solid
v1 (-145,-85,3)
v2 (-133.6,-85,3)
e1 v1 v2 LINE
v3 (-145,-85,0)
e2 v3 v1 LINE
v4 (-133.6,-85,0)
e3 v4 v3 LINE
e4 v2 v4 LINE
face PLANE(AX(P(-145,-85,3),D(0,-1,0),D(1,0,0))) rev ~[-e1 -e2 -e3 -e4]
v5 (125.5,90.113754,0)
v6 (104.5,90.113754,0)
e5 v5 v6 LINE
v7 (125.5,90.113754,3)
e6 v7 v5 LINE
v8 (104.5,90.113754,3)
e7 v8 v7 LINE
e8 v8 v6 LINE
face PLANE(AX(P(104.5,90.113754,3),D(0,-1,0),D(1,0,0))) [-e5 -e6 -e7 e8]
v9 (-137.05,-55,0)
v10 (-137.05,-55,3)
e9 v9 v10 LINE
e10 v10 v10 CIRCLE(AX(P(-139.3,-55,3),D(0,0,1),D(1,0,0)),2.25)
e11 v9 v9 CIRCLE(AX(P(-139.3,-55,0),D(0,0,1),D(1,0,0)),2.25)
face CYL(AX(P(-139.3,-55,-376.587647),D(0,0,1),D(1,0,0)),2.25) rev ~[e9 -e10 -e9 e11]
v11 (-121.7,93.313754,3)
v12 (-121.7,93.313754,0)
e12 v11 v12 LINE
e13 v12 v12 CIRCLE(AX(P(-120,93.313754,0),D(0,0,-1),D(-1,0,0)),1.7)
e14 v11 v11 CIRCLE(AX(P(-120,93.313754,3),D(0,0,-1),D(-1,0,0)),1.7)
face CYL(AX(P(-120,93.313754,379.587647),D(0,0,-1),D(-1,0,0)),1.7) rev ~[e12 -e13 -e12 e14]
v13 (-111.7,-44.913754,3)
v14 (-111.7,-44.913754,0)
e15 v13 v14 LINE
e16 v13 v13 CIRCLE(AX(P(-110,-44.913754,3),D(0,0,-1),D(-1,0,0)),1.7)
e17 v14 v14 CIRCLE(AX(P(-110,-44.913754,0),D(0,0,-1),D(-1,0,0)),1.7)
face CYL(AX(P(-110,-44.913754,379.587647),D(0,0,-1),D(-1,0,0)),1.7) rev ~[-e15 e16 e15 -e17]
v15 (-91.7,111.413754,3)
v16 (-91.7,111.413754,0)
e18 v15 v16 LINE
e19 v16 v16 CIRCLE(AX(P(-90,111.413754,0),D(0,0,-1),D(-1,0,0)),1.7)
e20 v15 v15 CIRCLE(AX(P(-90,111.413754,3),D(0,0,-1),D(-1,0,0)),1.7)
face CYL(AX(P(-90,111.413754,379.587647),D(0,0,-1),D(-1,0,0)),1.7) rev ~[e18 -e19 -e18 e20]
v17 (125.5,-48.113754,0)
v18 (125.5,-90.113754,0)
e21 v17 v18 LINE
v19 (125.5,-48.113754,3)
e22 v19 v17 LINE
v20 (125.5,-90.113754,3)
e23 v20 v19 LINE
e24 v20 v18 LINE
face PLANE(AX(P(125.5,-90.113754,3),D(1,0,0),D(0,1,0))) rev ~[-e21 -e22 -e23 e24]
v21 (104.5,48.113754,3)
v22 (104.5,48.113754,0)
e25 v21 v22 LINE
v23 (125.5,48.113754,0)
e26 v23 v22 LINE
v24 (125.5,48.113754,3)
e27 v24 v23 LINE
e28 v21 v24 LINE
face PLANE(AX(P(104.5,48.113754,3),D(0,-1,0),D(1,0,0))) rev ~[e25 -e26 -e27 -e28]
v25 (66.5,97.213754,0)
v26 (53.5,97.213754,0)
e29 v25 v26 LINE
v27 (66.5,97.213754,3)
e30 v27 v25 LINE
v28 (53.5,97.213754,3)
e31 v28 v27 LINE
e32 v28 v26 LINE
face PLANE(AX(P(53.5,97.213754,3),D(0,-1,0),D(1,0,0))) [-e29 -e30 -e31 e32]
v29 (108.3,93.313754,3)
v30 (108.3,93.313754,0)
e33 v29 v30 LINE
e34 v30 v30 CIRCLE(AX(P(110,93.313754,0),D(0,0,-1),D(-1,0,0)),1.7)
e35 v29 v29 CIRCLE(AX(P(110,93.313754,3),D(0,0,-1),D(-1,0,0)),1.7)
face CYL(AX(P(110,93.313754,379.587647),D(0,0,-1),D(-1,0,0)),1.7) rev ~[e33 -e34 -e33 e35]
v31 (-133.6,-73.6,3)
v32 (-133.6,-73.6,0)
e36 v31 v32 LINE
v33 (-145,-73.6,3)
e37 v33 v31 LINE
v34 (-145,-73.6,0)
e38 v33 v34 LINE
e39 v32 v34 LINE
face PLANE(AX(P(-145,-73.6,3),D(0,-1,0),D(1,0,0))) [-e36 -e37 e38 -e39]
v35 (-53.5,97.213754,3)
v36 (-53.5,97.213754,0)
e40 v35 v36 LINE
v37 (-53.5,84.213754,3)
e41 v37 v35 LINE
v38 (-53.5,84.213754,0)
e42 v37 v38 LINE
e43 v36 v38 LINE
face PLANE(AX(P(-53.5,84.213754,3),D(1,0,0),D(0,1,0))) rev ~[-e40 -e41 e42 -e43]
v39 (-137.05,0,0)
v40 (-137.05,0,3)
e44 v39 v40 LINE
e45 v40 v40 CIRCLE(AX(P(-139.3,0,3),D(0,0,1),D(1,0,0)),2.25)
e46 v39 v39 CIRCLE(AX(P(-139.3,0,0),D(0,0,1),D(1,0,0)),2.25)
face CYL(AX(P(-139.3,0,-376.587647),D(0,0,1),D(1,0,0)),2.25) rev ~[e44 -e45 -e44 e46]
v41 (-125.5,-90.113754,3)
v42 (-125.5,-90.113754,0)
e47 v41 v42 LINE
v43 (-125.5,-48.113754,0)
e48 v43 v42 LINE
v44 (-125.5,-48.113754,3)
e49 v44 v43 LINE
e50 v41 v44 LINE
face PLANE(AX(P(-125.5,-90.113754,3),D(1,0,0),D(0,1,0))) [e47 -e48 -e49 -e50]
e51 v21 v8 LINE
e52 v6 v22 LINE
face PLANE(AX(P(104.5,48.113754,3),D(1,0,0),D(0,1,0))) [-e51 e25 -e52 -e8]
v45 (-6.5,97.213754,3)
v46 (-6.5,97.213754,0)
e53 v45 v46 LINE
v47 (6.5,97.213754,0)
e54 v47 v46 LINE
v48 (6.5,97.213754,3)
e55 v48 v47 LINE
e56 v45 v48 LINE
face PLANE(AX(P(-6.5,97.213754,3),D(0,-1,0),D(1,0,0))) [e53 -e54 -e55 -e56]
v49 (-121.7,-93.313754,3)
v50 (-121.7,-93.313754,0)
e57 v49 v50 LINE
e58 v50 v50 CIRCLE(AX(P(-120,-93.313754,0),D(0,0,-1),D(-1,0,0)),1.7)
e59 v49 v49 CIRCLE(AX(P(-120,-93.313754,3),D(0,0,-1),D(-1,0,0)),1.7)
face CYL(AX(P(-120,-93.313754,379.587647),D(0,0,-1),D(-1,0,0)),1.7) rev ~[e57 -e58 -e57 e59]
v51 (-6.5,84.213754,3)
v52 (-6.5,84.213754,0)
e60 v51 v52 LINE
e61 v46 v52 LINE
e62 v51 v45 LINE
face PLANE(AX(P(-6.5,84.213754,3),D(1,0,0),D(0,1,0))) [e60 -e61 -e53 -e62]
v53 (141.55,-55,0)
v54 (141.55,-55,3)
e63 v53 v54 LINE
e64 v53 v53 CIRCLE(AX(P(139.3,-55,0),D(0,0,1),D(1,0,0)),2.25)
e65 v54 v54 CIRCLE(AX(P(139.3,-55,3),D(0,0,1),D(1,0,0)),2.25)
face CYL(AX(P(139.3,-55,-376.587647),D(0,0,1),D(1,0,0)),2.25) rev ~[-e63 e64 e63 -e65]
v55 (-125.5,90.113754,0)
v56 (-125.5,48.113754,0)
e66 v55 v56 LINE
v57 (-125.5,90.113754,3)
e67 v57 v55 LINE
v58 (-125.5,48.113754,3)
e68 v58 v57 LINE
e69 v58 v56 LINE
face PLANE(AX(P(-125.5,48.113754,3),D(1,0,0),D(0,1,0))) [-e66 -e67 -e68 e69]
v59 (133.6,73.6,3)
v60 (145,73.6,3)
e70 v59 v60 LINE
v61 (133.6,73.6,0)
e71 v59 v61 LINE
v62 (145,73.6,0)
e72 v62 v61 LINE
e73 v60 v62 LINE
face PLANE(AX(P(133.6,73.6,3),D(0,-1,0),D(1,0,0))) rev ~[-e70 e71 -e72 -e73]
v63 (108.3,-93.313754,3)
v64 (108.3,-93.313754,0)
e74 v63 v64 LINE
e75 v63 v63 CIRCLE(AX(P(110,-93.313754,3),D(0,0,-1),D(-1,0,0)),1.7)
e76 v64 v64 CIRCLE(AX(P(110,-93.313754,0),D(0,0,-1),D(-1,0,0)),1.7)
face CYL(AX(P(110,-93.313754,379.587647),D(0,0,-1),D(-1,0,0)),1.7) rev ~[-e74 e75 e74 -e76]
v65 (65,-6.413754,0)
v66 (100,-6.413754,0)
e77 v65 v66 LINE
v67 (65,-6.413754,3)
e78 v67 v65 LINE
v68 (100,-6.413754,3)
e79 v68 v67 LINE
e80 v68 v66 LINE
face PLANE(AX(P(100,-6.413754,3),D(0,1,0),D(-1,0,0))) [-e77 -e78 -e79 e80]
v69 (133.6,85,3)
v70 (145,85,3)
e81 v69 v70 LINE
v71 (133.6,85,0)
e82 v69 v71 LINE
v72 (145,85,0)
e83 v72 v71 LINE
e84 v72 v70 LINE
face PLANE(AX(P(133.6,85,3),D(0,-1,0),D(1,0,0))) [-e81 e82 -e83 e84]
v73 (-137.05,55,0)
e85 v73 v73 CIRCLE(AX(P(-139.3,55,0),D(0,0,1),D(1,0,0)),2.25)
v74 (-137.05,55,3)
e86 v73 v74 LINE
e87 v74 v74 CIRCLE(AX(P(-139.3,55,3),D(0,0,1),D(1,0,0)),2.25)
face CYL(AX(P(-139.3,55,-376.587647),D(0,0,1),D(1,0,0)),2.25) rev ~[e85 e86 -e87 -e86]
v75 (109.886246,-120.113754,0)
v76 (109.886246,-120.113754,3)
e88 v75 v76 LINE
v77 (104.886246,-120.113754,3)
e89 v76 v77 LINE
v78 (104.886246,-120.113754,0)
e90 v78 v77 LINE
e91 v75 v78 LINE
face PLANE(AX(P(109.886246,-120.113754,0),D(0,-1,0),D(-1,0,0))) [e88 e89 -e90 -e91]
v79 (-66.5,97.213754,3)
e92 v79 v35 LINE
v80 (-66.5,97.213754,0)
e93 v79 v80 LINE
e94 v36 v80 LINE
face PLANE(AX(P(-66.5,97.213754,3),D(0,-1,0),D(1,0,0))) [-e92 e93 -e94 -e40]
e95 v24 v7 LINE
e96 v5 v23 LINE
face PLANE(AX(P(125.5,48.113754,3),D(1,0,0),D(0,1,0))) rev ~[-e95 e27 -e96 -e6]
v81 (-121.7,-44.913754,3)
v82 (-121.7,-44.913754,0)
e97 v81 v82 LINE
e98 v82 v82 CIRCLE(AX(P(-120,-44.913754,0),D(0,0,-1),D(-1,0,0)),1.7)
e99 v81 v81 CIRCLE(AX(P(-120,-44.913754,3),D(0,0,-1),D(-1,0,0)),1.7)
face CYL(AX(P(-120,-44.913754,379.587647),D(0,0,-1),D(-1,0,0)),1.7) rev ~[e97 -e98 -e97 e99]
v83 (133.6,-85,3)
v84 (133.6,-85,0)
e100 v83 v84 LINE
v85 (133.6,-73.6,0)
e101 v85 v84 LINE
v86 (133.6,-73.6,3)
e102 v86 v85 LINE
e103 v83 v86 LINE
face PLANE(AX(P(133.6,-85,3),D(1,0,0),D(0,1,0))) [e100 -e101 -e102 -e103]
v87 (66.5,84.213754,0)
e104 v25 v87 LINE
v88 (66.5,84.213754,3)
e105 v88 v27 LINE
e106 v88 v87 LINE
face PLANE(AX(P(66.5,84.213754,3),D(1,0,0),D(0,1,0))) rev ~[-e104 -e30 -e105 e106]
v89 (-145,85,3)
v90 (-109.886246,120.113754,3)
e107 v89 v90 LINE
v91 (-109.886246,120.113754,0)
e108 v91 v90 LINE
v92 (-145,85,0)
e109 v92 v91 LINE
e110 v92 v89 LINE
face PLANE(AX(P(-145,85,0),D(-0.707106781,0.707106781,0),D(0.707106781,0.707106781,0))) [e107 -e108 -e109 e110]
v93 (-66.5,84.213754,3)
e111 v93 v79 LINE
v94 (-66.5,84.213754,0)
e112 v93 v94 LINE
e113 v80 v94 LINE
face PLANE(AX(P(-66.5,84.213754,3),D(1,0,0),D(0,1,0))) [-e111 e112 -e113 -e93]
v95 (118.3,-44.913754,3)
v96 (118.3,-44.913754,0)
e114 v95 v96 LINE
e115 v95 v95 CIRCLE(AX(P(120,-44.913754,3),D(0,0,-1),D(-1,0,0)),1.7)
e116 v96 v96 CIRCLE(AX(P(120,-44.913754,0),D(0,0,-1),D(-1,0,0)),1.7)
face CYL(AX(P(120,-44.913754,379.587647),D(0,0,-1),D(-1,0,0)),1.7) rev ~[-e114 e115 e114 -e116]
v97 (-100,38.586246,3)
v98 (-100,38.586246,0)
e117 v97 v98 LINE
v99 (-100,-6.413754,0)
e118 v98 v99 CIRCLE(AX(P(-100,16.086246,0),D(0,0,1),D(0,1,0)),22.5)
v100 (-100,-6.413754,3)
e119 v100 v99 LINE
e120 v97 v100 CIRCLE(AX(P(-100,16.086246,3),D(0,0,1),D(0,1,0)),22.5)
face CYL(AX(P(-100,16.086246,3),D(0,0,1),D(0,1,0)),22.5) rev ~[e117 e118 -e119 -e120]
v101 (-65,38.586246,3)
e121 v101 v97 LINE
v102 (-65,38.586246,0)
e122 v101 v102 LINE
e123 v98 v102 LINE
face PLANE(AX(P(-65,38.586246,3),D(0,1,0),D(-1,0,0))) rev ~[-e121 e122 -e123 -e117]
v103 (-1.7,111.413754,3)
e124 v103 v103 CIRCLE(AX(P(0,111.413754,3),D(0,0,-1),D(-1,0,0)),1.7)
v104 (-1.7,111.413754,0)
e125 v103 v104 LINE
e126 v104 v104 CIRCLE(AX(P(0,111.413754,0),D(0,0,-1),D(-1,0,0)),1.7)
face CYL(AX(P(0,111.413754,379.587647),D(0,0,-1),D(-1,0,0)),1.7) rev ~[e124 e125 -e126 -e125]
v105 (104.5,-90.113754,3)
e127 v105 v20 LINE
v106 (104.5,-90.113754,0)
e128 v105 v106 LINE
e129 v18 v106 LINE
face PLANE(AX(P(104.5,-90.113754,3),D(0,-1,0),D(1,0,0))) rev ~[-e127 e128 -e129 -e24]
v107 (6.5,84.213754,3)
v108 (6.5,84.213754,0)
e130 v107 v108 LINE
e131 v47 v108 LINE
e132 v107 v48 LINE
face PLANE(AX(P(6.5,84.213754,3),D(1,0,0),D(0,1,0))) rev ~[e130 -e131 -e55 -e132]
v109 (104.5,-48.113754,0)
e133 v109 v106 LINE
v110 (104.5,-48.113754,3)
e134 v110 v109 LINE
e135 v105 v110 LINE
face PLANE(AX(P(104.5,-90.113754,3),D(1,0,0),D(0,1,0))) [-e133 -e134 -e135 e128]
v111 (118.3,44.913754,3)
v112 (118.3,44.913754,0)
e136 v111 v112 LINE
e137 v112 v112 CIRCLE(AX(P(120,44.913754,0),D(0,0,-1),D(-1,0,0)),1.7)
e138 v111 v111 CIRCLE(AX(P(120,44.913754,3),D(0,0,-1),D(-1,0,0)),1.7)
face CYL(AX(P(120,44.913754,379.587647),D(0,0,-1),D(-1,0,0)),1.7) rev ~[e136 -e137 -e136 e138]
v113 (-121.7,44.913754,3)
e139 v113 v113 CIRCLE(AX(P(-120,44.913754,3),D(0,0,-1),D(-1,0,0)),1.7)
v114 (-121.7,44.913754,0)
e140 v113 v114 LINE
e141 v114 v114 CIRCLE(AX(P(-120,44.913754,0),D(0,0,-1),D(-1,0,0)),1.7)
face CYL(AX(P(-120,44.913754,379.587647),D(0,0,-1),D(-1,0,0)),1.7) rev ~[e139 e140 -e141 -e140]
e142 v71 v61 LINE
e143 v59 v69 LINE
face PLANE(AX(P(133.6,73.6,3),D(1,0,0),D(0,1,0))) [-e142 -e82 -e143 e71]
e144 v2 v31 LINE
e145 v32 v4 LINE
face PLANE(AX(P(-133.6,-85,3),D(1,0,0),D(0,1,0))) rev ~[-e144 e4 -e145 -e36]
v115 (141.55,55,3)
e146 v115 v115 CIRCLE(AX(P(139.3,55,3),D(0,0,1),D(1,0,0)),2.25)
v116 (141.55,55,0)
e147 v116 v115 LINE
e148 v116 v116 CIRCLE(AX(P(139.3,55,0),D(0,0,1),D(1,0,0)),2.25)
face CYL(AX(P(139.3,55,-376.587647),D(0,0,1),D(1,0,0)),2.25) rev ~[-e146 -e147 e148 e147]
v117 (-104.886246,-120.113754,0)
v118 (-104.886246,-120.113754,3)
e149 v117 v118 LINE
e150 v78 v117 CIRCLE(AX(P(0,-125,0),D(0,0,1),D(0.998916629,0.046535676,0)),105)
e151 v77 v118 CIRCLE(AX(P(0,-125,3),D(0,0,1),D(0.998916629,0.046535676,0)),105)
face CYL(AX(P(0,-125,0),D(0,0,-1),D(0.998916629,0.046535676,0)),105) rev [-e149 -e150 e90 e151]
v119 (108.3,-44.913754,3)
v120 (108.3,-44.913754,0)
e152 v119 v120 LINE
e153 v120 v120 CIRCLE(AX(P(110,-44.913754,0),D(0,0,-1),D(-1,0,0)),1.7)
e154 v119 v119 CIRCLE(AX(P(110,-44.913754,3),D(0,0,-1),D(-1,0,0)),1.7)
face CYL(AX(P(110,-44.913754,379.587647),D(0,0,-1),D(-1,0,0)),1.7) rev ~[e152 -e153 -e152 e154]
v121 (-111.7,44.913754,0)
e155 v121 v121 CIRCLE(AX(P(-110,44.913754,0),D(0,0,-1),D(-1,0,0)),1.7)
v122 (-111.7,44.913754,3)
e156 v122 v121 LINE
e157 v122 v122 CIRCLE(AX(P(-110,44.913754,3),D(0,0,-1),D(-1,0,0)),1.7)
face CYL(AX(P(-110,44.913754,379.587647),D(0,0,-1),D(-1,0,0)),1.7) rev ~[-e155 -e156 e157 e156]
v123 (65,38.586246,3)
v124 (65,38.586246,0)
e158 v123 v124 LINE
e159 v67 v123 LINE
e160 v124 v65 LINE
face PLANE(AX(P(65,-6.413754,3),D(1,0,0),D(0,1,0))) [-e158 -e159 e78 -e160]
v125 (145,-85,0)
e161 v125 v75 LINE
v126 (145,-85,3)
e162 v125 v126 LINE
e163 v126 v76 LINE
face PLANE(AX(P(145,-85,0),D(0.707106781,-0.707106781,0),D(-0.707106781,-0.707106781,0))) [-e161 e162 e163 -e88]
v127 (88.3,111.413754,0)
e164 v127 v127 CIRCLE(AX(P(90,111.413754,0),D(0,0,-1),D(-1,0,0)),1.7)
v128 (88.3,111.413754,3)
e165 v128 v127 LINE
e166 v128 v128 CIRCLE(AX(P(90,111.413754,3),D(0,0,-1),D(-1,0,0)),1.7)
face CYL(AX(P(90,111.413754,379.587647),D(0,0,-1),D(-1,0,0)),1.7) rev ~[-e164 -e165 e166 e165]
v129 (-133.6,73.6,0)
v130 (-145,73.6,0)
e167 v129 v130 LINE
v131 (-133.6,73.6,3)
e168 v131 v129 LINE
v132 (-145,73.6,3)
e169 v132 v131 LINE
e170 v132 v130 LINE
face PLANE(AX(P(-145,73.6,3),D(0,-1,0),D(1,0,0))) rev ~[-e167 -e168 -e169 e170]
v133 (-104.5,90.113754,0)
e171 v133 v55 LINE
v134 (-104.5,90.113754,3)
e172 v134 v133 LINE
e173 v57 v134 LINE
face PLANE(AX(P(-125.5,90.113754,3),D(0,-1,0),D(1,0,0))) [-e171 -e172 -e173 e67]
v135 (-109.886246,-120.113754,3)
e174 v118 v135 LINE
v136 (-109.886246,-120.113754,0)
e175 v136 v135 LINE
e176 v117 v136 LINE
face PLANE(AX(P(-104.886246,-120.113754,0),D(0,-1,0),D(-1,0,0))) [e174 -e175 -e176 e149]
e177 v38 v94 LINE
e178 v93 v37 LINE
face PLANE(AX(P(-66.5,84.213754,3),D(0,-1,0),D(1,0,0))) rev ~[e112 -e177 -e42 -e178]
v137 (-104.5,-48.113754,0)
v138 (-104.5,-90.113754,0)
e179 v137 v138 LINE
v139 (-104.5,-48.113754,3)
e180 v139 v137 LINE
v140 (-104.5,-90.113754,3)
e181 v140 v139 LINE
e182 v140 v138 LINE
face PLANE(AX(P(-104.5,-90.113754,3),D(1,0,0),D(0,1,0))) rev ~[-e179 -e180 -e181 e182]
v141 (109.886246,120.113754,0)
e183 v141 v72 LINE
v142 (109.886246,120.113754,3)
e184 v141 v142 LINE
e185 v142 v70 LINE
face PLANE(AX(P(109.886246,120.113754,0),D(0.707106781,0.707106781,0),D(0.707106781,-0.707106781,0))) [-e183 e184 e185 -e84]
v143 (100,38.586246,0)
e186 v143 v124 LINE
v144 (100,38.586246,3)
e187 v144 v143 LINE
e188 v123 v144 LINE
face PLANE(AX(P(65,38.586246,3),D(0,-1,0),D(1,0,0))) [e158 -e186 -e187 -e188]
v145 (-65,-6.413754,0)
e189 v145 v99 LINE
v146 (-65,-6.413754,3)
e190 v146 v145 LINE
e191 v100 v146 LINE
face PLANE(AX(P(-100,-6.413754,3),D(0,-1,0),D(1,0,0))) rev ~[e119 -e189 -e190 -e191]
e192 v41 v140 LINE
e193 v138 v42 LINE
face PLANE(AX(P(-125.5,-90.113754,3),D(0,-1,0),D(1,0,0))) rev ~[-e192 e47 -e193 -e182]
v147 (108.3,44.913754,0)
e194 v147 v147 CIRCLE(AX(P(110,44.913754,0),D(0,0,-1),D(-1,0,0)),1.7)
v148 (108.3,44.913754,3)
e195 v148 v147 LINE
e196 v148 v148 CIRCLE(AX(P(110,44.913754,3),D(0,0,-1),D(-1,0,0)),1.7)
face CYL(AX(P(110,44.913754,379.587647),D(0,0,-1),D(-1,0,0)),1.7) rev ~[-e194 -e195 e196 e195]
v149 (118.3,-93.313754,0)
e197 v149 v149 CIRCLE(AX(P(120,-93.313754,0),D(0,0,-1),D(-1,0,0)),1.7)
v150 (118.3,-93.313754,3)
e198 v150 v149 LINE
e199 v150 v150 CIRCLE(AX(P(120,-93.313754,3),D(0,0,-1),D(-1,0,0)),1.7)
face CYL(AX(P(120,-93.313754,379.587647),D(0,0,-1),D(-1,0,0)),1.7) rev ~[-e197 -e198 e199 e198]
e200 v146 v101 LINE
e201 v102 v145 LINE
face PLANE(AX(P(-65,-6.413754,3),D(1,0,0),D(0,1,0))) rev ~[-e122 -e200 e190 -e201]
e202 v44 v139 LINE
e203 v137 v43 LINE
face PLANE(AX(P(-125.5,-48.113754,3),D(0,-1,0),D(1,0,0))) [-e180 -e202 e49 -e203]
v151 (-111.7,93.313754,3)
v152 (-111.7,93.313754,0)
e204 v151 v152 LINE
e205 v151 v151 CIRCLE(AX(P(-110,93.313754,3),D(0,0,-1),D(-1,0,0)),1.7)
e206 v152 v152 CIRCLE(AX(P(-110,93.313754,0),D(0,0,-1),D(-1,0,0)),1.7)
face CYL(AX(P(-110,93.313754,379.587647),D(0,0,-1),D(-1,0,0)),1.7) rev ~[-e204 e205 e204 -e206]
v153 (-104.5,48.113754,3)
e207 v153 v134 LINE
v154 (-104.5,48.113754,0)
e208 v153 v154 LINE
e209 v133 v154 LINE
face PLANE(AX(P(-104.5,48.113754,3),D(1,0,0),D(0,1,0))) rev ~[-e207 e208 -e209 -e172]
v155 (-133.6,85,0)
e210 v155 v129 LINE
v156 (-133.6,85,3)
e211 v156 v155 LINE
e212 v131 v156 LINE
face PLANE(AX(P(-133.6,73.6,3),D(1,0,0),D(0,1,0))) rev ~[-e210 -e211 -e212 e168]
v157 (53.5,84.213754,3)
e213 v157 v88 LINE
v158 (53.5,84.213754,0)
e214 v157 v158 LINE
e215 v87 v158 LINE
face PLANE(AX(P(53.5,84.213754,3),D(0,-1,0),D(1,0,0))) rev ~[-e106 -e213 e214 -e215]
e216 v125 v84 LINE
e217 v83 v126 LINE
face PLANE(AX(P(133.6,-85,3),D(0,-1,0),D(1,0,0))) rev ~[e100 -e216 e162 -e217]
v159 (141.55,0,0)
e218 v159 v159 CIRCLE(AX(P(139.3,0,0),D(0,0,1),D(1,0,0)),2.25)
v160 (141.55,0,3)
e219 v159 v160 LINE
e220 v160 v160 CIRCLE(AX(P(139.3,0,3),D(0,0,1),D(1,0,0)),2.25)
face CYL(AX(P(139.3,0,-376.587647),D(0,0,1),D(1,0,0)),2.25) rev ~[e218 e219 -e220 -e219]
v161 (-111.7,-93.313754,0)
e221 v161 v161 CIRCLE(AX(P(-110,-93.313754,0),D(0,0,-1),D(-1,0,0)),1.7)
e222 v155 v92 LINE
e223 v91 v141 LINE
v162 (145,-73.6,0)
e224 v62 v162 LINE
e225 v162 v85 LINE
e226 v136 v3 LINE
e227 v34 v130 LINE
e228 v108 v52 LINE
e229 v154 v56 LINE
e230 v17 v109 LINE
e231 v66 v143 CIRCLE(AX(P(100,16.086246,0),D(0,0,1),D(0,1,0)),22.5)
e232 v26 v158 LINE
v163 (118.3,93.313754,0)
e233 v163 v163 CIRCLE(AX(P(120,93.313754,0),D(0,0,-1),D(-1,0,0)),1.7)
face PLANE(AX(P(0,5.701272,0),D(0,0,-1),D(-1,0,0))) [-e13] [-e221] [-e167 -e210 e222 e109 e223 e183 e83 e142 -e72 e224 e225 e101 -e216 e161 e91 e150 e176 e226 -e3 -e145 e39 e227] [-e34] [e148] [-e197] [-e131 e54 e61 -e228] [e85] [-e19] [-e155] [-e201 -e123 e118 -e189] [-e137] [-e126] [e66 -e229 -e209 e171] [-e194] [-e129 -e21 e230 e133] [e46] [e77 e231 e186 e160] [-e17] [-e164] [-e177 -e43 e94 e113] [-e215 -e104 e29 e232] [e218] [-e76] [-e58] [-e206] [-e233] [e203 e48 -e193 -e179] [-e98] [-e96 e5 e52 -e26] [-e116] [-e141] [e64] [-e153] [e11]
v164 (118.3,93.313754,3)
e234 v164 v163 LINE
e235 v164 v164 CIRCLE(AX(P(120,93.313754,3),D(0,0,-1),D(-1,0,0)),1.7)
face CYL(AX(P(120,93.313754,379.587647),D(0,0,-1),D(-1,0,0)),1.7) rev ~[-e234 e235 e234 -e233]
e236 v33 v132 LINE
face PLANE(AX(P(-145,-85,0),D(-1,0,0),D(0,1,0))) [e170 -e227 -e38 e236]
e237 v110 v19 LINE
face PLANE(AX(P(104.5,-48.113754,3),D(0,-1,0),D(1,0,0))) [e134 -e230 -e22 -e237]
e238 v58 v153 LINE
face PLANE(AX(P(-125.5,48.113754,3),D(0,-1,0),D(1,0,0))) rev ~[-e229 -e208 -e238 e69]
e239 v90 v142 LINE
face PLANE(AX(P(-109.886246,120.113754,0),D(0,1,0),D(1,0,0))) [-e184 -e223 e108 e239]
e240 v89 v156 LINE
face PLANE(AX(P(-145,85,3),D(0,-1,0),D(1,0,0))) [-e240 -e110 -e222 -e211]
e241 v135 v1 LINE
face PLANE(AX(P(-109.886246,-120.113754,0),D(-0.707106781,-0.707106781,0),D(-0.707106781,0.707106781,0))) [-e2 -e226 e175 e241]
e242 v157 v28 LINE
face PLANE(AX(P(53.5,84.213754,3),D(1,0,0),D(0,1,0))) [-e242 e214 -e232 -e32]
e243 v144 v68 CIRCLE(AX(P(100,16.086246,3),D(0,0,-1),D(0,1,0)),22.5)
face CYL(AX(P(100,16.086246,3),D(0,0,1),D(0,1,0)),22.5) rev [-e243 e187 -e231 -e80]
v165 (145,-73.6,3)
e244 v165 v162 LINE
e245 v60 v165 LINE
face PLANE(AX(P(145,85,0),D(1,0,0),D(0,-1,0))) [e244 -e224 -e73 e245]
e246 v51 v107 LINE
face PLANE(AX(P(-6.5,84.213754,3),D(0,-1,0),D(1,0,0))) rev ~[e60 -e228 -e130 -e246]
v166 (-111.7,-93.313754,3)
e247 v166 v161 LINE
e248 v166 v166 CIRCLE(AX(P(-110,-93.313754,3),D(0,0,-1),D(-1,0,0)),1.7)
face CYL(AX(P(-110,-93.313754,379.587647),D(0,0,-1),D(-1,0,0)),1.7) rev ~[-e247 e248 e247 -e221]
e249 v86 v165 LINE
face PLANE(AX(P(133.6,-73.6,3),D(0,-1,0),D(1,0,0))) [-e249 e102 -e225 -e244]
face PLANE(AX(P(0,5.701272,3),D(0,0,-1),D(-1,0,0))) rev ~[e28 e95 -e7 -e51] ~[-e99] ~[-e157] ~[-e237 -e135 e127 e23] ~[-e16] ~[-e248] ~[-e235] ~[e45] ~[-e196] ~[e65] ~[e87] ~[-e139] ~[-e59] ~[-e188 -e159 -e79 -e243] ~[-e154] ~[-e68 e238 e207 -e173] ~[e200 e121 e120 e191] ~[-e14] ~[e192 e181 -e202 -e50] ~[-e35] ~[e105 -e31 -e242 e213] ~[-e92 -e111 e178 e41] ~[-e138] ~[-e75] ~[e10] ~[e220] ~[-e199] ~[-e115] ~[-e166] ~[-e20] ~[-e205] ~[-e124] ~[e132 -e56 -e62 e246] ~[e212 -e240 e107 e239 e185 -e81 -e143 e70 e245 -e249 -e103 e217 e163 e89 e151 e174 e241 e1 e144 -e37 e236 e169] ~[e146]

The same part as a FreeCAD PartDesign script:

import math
import FreeCAD as App
import Part
import Sketcher
from FreeCAD import Vector

doc = App.newDocument("Part")
body = doc.addObject("PartDesign::Body", "Body")

# Sketch on XY plane
sketch1 = doc.addObject("Sketcher::SketchObject", "Sketch")
body.addObject(sketch1)
sketch1.AttachmentSupport = (doc.XY_Plane, [""])
sketch1.MapMode = "FlatFace"
sketch1.addGeometry(Part.LineSegment(Vector(-109.886246, 120.113754, 0), Vector(-145, 85, 0)), False)
sketch1.addGeometry(Part.LineSegment(Vector(-145, 85, 0), Vector(-145, -85, 0)), False)
sketch1.addGeometry(Part.LineSegment(Vector(-145, -85, 0), Vector(-109.886246, -120.113754, 0)), False)
sketch1.addGeometry(Part.LineSegment(Vector(-109.886246, -120.113754, 0), Vector(-104.886246, -120.113754, 0)), False)
sketch1.addGeometry(Part.ArcOfCircle(Part.Circle(Vector(0, -125, 0), Vector(0, 0, 1), 105), math.radians(2.667261), math.radians(177.332739)), False)
sketch1.addGeometry(Part.LineSegment(Vector(104.886246, -120.113754, 0), Vector(109.886246, -120.113754, 0)), False)
sketch1.addGeometry(Part.LineSegment(Vector(109.886246, -120.113754, 0), Vector(145, -85, 0)), False)
sketch1.addGeometry(Part.LineSegment(Vector(145, -85, 0), Vector(145, 85, 0)), False)
sketch1.addGeometry(Part.LineSegment(Vector(145, 85, 0), Vector(109.886246, 120.113754, 0)), False)
sketch1.addGeometry(Part.LineSegment(Vector(109.886246, 120.113754, 0), Vector(-109.886246, 120.113754, 0)), False)
sketch1.addConstraint(Sketcher.Constraint("Coincident", 0, 2, 1, 1))
sketch1.addConstraint(Sketcher.Constraint("Coincident", 1, 2, 2, 1))
sketch1.addConstraint(Sketcher.Constraint("Coincident", 2, 2, 3, 1))
sketch1.addConstraint(Sketcher.Constraint("Coincident", 3, 2, 4, 2))
sketch1.addConstraint(Sketcher.Constraint("Coincident", 4, 1, 5, 1))
sketch1.addConstraint(Sketcher.Constraint("Coincident", 5, 2, 6, 1))
sketch1.addConstraint(Sketcher.Constraint("Coincident", 6, 2, 7, 1))
sketch1.addConstraint(Sketcher.Constraint("Coincident", 7, 2, 8, 1))
sketch1.addConstraint(Sketcher.Constraint("Coincident", 8, 2, 9, 1))
sketch1.addConstraint(Sketcher.Constraint("Coincident", 9, 2, 0, 1))
sketch1.addConstraint(Sketcher.Constraint("Vertical", 1))
sketch1.addConstraint(Sketcher.Constraint("Horizontal", 3))
sketch1.addConstraint(Sketcher.Constraint("Horizontal", 5))
sketch1.addConstraint(Sketcher.Constraint("Vertical", 7))
sketch1.addConstraint(Sketcher.Constraint("Horizontal", 9))
sketch1.addConstraint(Sketcher.Constraint("Symmetric", 0, 2, 6, 2, -1, 1))
sketch1.addConstraint(Sketcher.Constraint("Symmetric", 2, 2, 8, 2, -1, 1))
sketch1.addConstraint(Sketcher.Constraint("Symmetric", 5, 2, 9, 2, -1, 1))
sketch1.addConstraint(Sketcher.Constraint("PointOnObject", 4, 3, -2))
sketch1.addConstraint(Sketcher.Constraint("Perpendicular", 0, 2))
sketch1.addConstraint(Sketcher.Constraint("Perpendicular", 6, 8))
sketch1.addConstraint(Sketcher.Constraint("Horizontal", 1, 2, 6, 2))
sketch1.addConstraint(Sketcher.Constraint("Vertical", 5, 2, 8, 2))
sketch1.addConstraint(Sketcher.Constraint("Radius", 4, 105.0))
sketch1.addConstraint(Sketcher.Constraint("DistanceX", 3, 1, 3, 2, 5.0))
sketch1.addConstraint(Sketcher.Constraint("DistanceY", 1, 2, 1, 1, 170.0))
sketch1.addConstraint(Sketcher.Constraint("DistanceY", 4, 3, -1, 1, 125.0))
sketch1.addConstraint(Sketcher.Constraint("DistanceX", 0, 2, -1, 1, 145.0))
pad1 = doc.addObject("PartDesign::Pad", "Pad")
body.addObject(pad1)
pad1.Profile = sketch1
pad1.Length = 3

# Sketch on XY plane
sketch2 = doc.addObject("Sketcher::SketchObject", "Sketch001")
body.addObject(sketch2)
sketch2.AttachmentSupport = (doc.XY_Plane, [""])
sketch2.MapMode = "FlatFace"
sketch2.AttachmentOffset = App.Placement(Vector(0, 0, 3), App.Rotation())
sketch2.addGeometry(Part.LineSegment(Vector(-125.5, -48.113754, 0), Vector(-125.5, -90.113754, 0)), False)
sketch2.addGeometry(Part.LineSegment(Vector(-125.5, -90.113754, 0), Vector(-104.5, -90.113754, 0)), False)
sketch2.addGeometry(Part.LineSegment(Vector(-104.5, -90.113754, 0), Vector(-104.5, -48.113754, 0)), False)
sketch2.addGeometry(Part.LineSegment(Vector(-104.5, -48.113754, 0), Vector(-125.5, -48.113754, 0)), False)
sketch2.addGeometry(Part.LineSegment(Vector(-125.5, 90.113754, 0), Vector(-125.5, 48.113754, 0)), False)
sketch2.addGeometry(Part.LineSegment(Vector(-125.5, 48.113754, 0), Vector(-104.5, 48.113754, 0)), False)
sketch2.addGeometry(Part.LineSegment(Vector(-104.5, 48.113754, 0), Vector(-104.5, 90.113754, 0)), False)
sketch2.addGeometry(Part.LineSegment(Vector(-104.5, 90.113754, 0), Vector(-125.5, 90.113754, 0)), False)
sketch2.addGeometry(Part.LineSegment(Vector(104.5, 90.113754, 0), Vector(104.5, 48.113754, 0)), False)
sketch2.addGeometry(Part.LineSegment(Vector(104.5, 48.113754, 0), Vector(125.5, 48.113754, 0)), False)
sketch2.addGeometry(Part.LineSegment(Vector(125.5, 48.113754, 0), Vector(125.5, 90.113754, 0)), False)
sketch2.addGeometry(Part.LineSegment(Vector(125.5, 90.113754, 0), Vector(104.5, 90.113754, 0)), False)
sketch2.addGeometry(Part.LineSegment(Vector(104.5, -48.113754, 0), Vector(104.5, -90.113754, 0)), False)
sketch2.addGeometry(Part.LineSegment(Vector(104.5, -90.113754, 0), Vector(125.5, -90.113754, 0)), False)
sketch2.addGeometry(Part.LineSegment(Vector(125.5, -90.113754, 0), Vector(125.5, -48.113754, 0)), False)
sketch2.addGeometry(Part.LineSegment(Vector(125.5, -48.113754, 0), Vector(104.5, -48.113754, 0)), False)
sketch2.addConstraint(Sketcher.Constraint("Coincident", 0, 2, 1, 1))
sketch2.addConstraint(Sketcher.Constraint("Coincident", 1, 2, 2, 1))
sketch2.addConstraint(Sketcher.Constraint("Coincident", 2, 2, 3, 1))
sketch2.addConstraint(Sketcher.Constraint("Coincident", 3, 2, 0, 1))
sketch2.addConstraint(Sketcher.Constraint("Coincident", 4, 2, 5, 1))
sketch2.addConstraint(Sketcher.Constraint("Coincident", 5, 2, 6, 1))
sketch2.addConstraint(Sketcher.Constraint("Coincident", 6, 2, 7, 1))
sketch2.addConstraint(Sketcher.Constraint("Coincident", 7, 2, 4, 1))
sketch2.addConstraint(Sketcher.Constraint("Coincident", 8, 2, 9, 1))
sketch2.addConstraint(Sketcher.Constraint("Coincident", 9, 2, 10, 1))
sketch2.addConstraint(Sketcher.Constraint("Coincident", 10, 2, 11, 1))
sketch2.addConstraint(Sketcher.Constraint("Coincident", 11, 2, 8, 1))
sketch2.addConstraint(Sketcher.Constraint("Coincident", 12, 2, 13, 1))
sketch2.addConstraint(Sketcher.Constraint("Coincident", 13, 2, 14, 1))
sketch2.addConstraint(Sketcher.Constraint("Coincident", 14, 2, 15, 1))
sketch2.addConstraint(Sketcher.Constraint("Coincident", 15, 2, 12, 1))
sketch2.addConstraint(Sketcher.Constraint("Vertical", 0))
sketch2.addConstraint(Sketcher.Constraint("Horizontal", 1))
sketch2.addConstraint(Sketcher.Constraint("Vertical", 2))
sketch2.addConstraint(Sketcher.Constraint("Horizontal", 3))
sketch2.addConstraint(Sketcher.Constraint("Vertical", 4))
sketch2.addConstraint(Sketcher.Constraint("Horizontal", 5))
sketch2.addConstraint(Sketcher.Constraint("Vertical", 6))
sketch2.addConstraint(Sketcher.Constraint("Horizontal", 7))
sketch2.addConstraint(Sketcher.Constraint("Vertical", 8))
sketch2.addConstraint(Sketcher.Constraint("Horizontal", 9))
sketch2.addConstraint(Sketcher.Constraint("Vertical", 10))
sketch2.addConstraint(Sketcher.Constraint("Horizontal", 11))
sketch2.addConstraint(Sketcher.Constraint("Vertical", 12))
sketch2.addConstraint(Sketcher.Constraint("Horizontal", 13))
sketch2.addConstraint(Sketcher.Constraint("Vertical", 14))
sketch2.addConstraint(Sketcher.Constraint("Horizontal", 15))
sketch2.addConstraint(Sketcher.Constraint("Symmetric", 2, 2, 8, 2, -1, 1))
sketch2.addConstraint(Sketcher.Constraint("Symmetric", 0, 2, 10, 2, -1, 1))
sketch2.addConstraint(Sketcher.Constraint("Symmetric", 6, 2, 12, 2, -1, 1))
sketch2.addConstraint(Sketcher.Constraint("Symmetric", 4, 2, 14, 2, -1, 1))
sketch2.addConstraint(Sketcher.Constraint("Symmetric", 5, 2, 8, 2, -2))
sketch2.addConstraint(Sketcher.Constraint("Symmetric", 7, 2, 10, 2, -2))
sketch2.addConstraint(Sketcher.Constraint("DistanceX", 1, 1, 1, 2, 21.0))
sketch2.addConstraint(Sketcher.Constraint("DistanceY", 0, 2, 0, 1, 42.0))
sketch2.addConstraint(Sketcher.Constraint("DistanceX", 5, 2, 8, 2, 209.0))
sketch2.addConstraint(Sketcher.Constraint("DistanceY", 3, 2, 4, 2, 96.227508))
pocket1 = doc.addObject("PartDesign::Pocket", "Pocket")
body.addObject(pocket1)
pocket1.Profile = sketch2
pocket1.Type = "ThroughAll"

# Sketch on XY plane
sketch3 = doc.addObject("Sketcher::SketchObject", "Sketch002")
body.addObject(sketch3)
sketch3.AttachmentSupport = (doc.XY_Plane, [""])
sketch3.MapMode = "FlatFace"
sketch3.AttachmentOffset = App.Placement(Vector(0, 0, 3), App.Rotation())
sketch3.addGeometry(Part.LineSegment(Vector(-145, 85, 0), Vector(-145, 73.6, 0)), False)
sketch3.addGeometry(Part.LineSegment(Vector(-145, 73.6, 0), Vector(-133.6, 73.6, 0)), False)
sketch3.addGeometry(Part.LineSegment(Vector(-133.6, 73.6, 0), Vector(-133.6, 85, 0)), False)
sketch3.addGeometry(Part.LineSegment(Vector(-133.6, 85, 0), Vector(-145, 85, 0)), False)
sketch3.addGeometry(Part.LineSegment(Vector(133.6, 85, 0), Vector(133.6, 73.6, 0)), False)
sketch3.addGeometry(Part.LineSegment(Vector(133.6, 73.6, 0), Vector(145, 73.6, 0)), False)
sketch3.addGeometry(Part.LineSegment(Vector(145, 73.6, 0), Vector(145, 85, 0)), False)
sketch3.addGeometry(Part.LineSegment(Vector(145, 85, 0), Vector(133.6, 85, 0)), False)
sketch3.addGeometry(Part.LineSegment(Vector(-145, -73.6, 0), Vector(-145, -85, 0)), False)
sketch3.addGeometry(Part.LineSegment(Vector(-145, -85, 0), Vector(-133.6, -85, 0)), False)
sketch3.addGeometry(Part.LineSegment(Vector(-133.6, -85, 0), Vector(-133.6, -73.6, 0)), False)
sketch3.addGeometry(Part.LineSegment(Vector(-133.6, -73.6, 0), Vector(-145, -73.6, 0)), False)
sketch3.addGeometry(Part.LineSegment(Vector(133.6, -73.6, 0), Vector(133.6, -85, 0)), False)
sketch3.addGeometry(Part.LineSegment(Vector(133.6, -85, 0), Vector(145, -85, 0)), False)
sketch3.addGeometry(Part.LineSegment(Vector(145, -85, 0), Vector(145, -73.6, 0)), False)
sketch3.addGeometry(Part.LineSegment(Vector(145, -73.6, 0), Vector(133.6, -73.6, 0)), False)
sketch3.addConstraint(Sketcher.Constraint("Coincident", 0, 2, 1, 1))
sketch3.addConstraint(Sketcher.Constraint("Coincident", 1, 2, 2, 1))
sketch3.addConstraint(Sketcher.Constraint("Coincident", 2, 2, 3, 1))
sketch3.addConstraint(Sketcher.Constraint("Coincident", 3, 2, 0, 1))
sketch3.addConstraint(Sketcher.Constraint("Coincident", 4, 2, 5, 1))
sketch3.addConstraint(Sketcher.Constraint("Coincident", 5, 2, 6, 1))
sketch3.addConstraint(Sketcher.Constraint("Coincident", 6, 2, 7, 1))
sketch3.addConstraint(Sketcher.Constraint("Coincident", 7, 2, 4, 1))
sketch3.addConstraint(Sketcher.Constraint("Coincident", 8, 2, 9, 1))
sketch3.addConstraint(Sketcher.Constraint("Coincident", 9, 2, 10, 1))
sketch3.addConstraint(Sketcher.Constraint("Coincident", 10, 2, 11, 1))
sketch3.addConstraint(Sketcher.Constraint("Coincident", 11, 2, 8, 1))
sketch3.addConstraint(Sketcher.Constraint("Coincident", 12, 2, 13, 1))
sketch3.addConstraint(Sketcher.Constraint("Coincident", 13, 2, 14, 1))
sketch3.addConstraint(Sketcher.Constraint("Coincident", 14, 2, 15, 1))
sketch3.addConstraint(Sketcher.Constraint("Coincident", 15, 2, 12, 1))
sketch3.addConstraint(Sketcher.Constraint("Vertical", 0))
sketch3.addConstraint(Sketcher.Constraint("Horizontal", 1))
sketch3.addConstraint(Sketcher.Constraint("Vertical", 2))
sketch3.addConstraint(Sketcher.Constraint("Horizontal", 3))
sketch3.addConstraint(Sketcher.Constraint("Vertical", 4))
sketch3.addConstraint(Sketcher.Constraint("Horizontal", 5))
sketch3.addConstraint(Sketcher.Constraint("Vertical", 6))
sketch3.addConstraint(Sketcher.Constraint("Horizontal", 7))
sketch3.addConstraint(Sketcher.Constraint("Vertical", 8))
sketch3.addConstraint(Sketcher.Constraint("Horizontal", 9))
sketch3.addConstraint(Sketcher.Constraint("Vertical", 10))
sketch3.addConstraint(Sketcher.Constraint("Horizontal", 11))
sketch3.addConstraint(Sketcher.Constraint("Vertical", 12))
sketch3.addConstraint(Sketcher.Constraint("Horizontal", 13))
sketch3.addConstraint(Sketcher.Constraint("Vertical", 14))
sketch3.addConstraint(Sketcher.Constraint("Horizontal", 15))
sketch3.addConstraint(Sketcher.Constraint("Symmetric", 6, 2, 8, 2, -1, 1))
sketch3.addConstraint(Sketcher.Constraint("Symmetric", 4, 2, 10, 2, -1, 1))
sketch3.addConstraint(Sketcher.Constraint("Symmetric", 2, 2, 12, 2, -1, 1))
sketch3.addConstraint(Sketcher.Constraint("Symmetric", 0, 2, 14, 2, -1, 1))
sketch3.addConstraint(Sketcher.Constraint("Symmetric", 1, 2, 4, 2, -2))
sketch3.addConstraint(Sketcher.Constraint("Symmetric", 3, 2, 6, 2, -2))
sketch3.addConstraint(Sketcher.Constraint("Equal", 15, 0))
sketch3.addConstraint(Sketcher.Constraint("DistanceX", 1, 1, 1, 2, 11.4))
sketch3.addConstraint(Sketcher.Constraint("DistanceX", 0, 2, -1, 1, 145.0))
sketch3.addConstraint(Sketcher.Constraint("DistanceY", -1, 1, 2, 2, 85.0))
pocket2 = doc.addObject("PartDesign::Pocket", "Pocket001")
body.addObject(pocket2)
pocket2.Profile = sketch3
pocket2.Type = "ThroughAll"

# Sketch on XY plane
sketch4 = doc.addObject("Sketcher::SketchObject", "Sketch003")
body.addObject(sketch4)
sketch4.AttachmentSupport = (doc.XY_Plane, [""])
sketch4.MapMode = "FlatFace"
sketch4.AttachmentOffset = App.Placement(Vector(0, 0, 3), App.Rotation())
sketch4.addGeometry(Part.Circle(Vector(-120, 93.313754, 0), Vector(0, 0, 1), 1.7), False)
sketch4.addGeometry(Part.Circle(Vector(-110, 93.313754, 0), Vector(0, 0, 1), 1.7), False)
sketch4.addGeometry(Part.Circle(Vector(-120, 44.913754, 0), Vector(0, 0, 1), 1.7), False)
sketch4.addGeometry(Part.Circle(Vector(-110, 44.913754, 0), Vector(0, 0, 1), 1.7), False)
sketch4.addGeometry(Part.Circle(Vector(-120, -44.913754, 0), Vector(0, 0, 1), 1.7), False)
sketch4.addGeometry(Part.Circle(Vector(-110, -44.913754, 0), Vector(0, 0, 1), 1.7), False)
sketch4.addGeometry(Part.Circle(Vector(-120, -93.313754, 0), Vector(0, 0, 1), 1.7), False)
sketch4.addGeometry(Part.Circle(Vector(-110, -93.313754, 0), Vector(0, 0, 1), 1.7), False)
sketch4.addGeometry(Part.Circle(Vector(110, -93.313754, 0), Vector(0, 0, 1), 1.7), False)
sketch4.addGeometry(Part.Circle(Vector(120, -93.313754, 0), Vector(0, 0, 1), 1.7), False)
sketch4.addGeometry(Part.Circle(Vector(120, -44.913754, 0), Vector(0, 0, 1), 1.7), False)
sketch4.addGeometry(Part.Circle(Vector(110, -44.913754, 0), Vector(0, 0, 1), 1.7), False)
sketch4.addGeometry(Part.Circle(Vector(120, 44.913754, 0), Vector(0, 0, 1), 1.7), False)
sketch4.addGeometry(Part.Circle(Vector(110, 44.913754, 0), Vector(0, 0, 1), 1.7), False)
sketch4.addGeometry(Part.Circle(Vector(110, 93.313754, 0), Vector(0, 0, 1), 1.7), False)
sketch4.addGeometry(Part.Circle(Vector(120, 93.313754, 0), Vector(0, 0, 1), 1.7), False)
sketch4.addConstraint(Sketcher.Constraint("Equal", 0, 1))
sketch4.addConstraint(Sketcher.Constraint("Equal", 1, 2))
sketch4.addConstraint(Sketcher.Constraint("Equal", 2, 3))
sketch4.addConstraint(Sketcher.Constraint("Equal", 3, 4))
sketch4.addConstraint(Sketcher.Constraint("Equal", 4, 5))
sketch4.addConstraint(Sketcher.Constraint("Equal", 5, 6))
sketch4.addConstraint(Sketcher.Constraint("Equal", 6, 7))
sketch4.addConstraint(Sketcher.Constraint("Equal", 7, 8))
sketch4.addConstraint(Sketcher.Constraint("Equal", 8, 9))
sketch4.addConstraint(Sketcher.Constraint("Equal", 9, 10))
sketch4.addConstraint(Sketcher.Constraint("Equal", 10, 11))
sketch4.addConstraint(Sketcher.Constraint("Equal", 11, 12))
sketch4.addConstraint(Sketcher.Constraint("Equal", 12, 13))
sketch4.addConstraint(Sketcher.Constraint("Equal", 13, 14))
sketch4.addConstraint(Sketcher.Constraint("Equal", 14, 15))
sketch4.addConstraint(Sketcher.Constraint("Symmetric", 1, 3, 8, 3, -1, 1))
sketch4.addConstraint(Sketcher.Constraint("Symmetric", 0, 3, 9, 3, -1, 1))
sketch4.addConstraint(Sketcher.Constraint("Symmetric", 2, 3, 10, 3, -1, 1))
sketch4.addConstraint(Sketcher.Constraint("Symmetric", 3, 3, 11, 3, -1, 1))
sketch4.addConstraint(Sketcher.Constraint("Symmetric", 4, 3, 12, 3, -1, 1))
sketch4.addConstraint(Sketcher.Constraint("Symmetric", 5, 3, 13, 3, -1, 1))
sketch4.addConstraint(Sketcher.Constraint("Symmetric", 7, 3, 14, 3, -1, 1))
sketch4.addConstraint(Sketcher.Constraint("Symmetric", 6, 3, 15, 3, -1, 1))
sketch4.addConstraint(Sketcher.Constraint("Symmetric", 7, 3, 8, 3, -2))
sketch4.addConstraint(Sketcher.Constraint("Symmetric", 6, 3, 9, 3, -2))
sketch4.addConstraint(Sketcher.Constraint("Symmetric", 4, 3, 10, 3, -2))
sketch4.addConstraint(Sketcher.Constraint("Symmetric", 5, 3, 11, 3, -2))
sketch4.addConstraint(Sketcher.Constraint("Horizontal", 0, 3, 1, 3))
sketch4.addConstraint(Sketcher.Constraint("Horizontal", 2, 3, 3, 3))
sketch4.addConstraint(Sketcher.Constraint("Vertical", 0, 3, 2, 3))
sketch4.addConstraint(Sketcher.Constraint("Vertical", 1, 3, 3, 3))
sketch4.addConstraint(Sketcher.Constraint("Diameter", 0, 3.4))
sketch4.addConstraint(Sketcher.Constraint("DistanceX", 0, 3, -1, 1, 120.0))
sketch4.addConstraint(Sketcher.Constraint("DistanceX", 1, 3, -1, 1, 110.0))
sketch4.addConstraint(Sketcher.Constraint("DistanceY", 2, 3, 0, 3, 48.4))
sketch4.addConstraint(Sketcher.Constraint("DistanceY", 4, 3, 0, 3, 138.227508))
doc.recompute()
hole = doc.addObject("PartDesign::Hole", "Hole")
body.addObject(hole)
hole.Profile = sketch4
hole.ThreadType = "None"
hole.Diameter = 3.4
hole.DepthType = "ThroughAll"

# Sketch on XY plane
sketch5 = doc.addObject("Sketcher::SketchObject", "Sketch004")
body.addObject(sketch5)
sketch5.AttachmentSupport = (doc.XY_Plane, [""])
sketch5.MapMode = "FlatFace"
sketch5.AttachmentOffset = App.Placement(Vector(0, 0, 3), App.Rotation())
sketch5.addGeometry(Part.Circle(Vector(-90, 111.413754, 0), Vector(0, 0, 1), 1.7), False)
sketch5.addGeometry(Part.Circle(Vector(0, 111.413754, 0), Vector(0, 0, 1), 1.7), False)
sketch5.addGeometry(Part.Circle(Vector(90, 111.413754, 0), Vector(0, 0, 1), 1.7), False)
sketch5.addConstraint(Sketcher.Constraint("Equal", 0, 1))
sketch5.addConstraint(Sketcher.Constraint("Equal", 1, 2))
sketch5.addConstraint(Sketcher.Constraint("Symmetric", 0, 3, 2, 3, -2))
sketch5.addConstraint(Sketcher.Constraint("PointOnObject", 1, 3, -2))
sketch5.addConstraint(Sketcher.Constraint("Horizontal", 0, 3, 1, 3))
sketch5.addConstraint(Sketcher.Constraint("Diameter", 0, 3.4))
sketch5.addConstraint(Sketcher.Constraint("DistanceX", 0, 3, -1, 1, 90.0))
sketch5.addConstraint(Sketcher.Constraint("DistanceY", -1, 1, 0, 3, 111.413754))
doc.recompute()
hole2 = doc.addObject("PartDesign::Hole", "Hole001")
body.addObject(hole2)
hole2.Profile = sketch5
hole2.ThreadType = "None"
hole2.Diameter = 3.4
hole2.DepthType = "ThroughAll"

# Sketch on XY plane
sketch6 = doc.addObject("Sketcher::SketchObject", "Sketch005")
body.addObject(sketch6)
sketch6.AttachmentSupport = (doc.XY_Plane, [""])
sketch6.MapMode = "FlatFace"
sketch6.AttachmentOffset = App.Placement(Vector(0, 0, 3), App.Rotation())
sketch6.addGeometry(Part.LineSegment(Vector(-100, -6.413754, 0), Vector(-65, -6.413754, 0)), False)
sketch6.addGeometry(Part.LineSegment(Vector(-65, -6.413754, 0), Vector(-65, 38.586246, 0)), False)
sketch6.addGeometry(Part.LineSegment(Vector(-65, 38.586246, 0), Vector(-100, 38.586246, 0)), False)
sketch6.addGeometry(Part.ArcOfCircle(Part.Circle(Vector(-100, 16.086246, 0), Vector(0, 0, 1), 22.5), math.radians(90), math.radians(270)), False)
sketch6.addGeometry(Part.LineSegment(Vector(65, -6.413754, 0), Vector(100, -6.413754, 0)), False)
sketch6.addGeometry(Part.ArcOfCircle(Part.Circle(Vector(100, 16.086246, 0), Vector(0, 0, 1), 22.5), math.radians(-90), math.radians(90)), False)
sketch6.addGeometry(Part.LineSegment(Vector(100, 38.586246, 0), Vector(65, 38.586246, 0)), False)
sketch6.addGeometry(Part.LineSegment(Vector(65, 38.586246, 0), Vector(65, -6.413754, 0)), False)
sketch6.addConstraint(Sketcher.Constraint("Coincident", 0, 2, 1, 1))
sketch6.addConstraint(Sketcher.Constraint("Coincident", 1, 2, 2, 1))
sketch6.addConstraint(Sketcher.Constraint("Tangent", 2, 2, 3, 1))
sketch6.addConstraint(Sketcher.Constraint("Tangent", 3, 2, 0, 1))
sketch6.addConstraint(Sketcher.Constraint("Tangent", 4, 2, 5, 1))
sketch6.addConstraint(Sketcher.Constraint("Tangent", 5, 2, 6, 1))
sketch6.addConstraint(Sketcher.Constraint("Coincident", 6, 2, 7, 1))
sketch6.addConstraint(Sketcher.Constraint("Coincident", 7, 2, 4, 1))
sketch6.addConstraint(Sketcher.Constraint("Horizontal", 0))
sketch6.addConstraint(Sketcher.Constraint("Vertical", 1))
sketch6.addConstraint(Sketcher.Constraint("Horizontal", 2))
sketch6.addConstraint(Sketcher.Constraint("Horizontal", 4))
sketch6.addConstraint(Sketcher.Constraint("Horizontal", 6))
sketch6.addConstraint(Sketcher.Constraint("Vertical", 7))
sketch6.addConstraint(Sketcher.Constraint("Equal", 3, 5))
sketch6.addConstraint(Sketcher.Constraint("Symmetric", 3, 3, 5, 3, -2))
sketch6.addConstraint(Sketcher.Constraint("Equal", 2, 4))
sketch6.addConstraint(Sketcher.Constraint("Radius", 3, 22.5))
sketch6.addConstraint(Sketcher.Constraint("DistanceX", 0, 1, 0, 2, 35.0))
sketch6.addConstraint(Sketcher.Constraint("DistanceX", 3, 3, -1, 1, 100.0))
sketch6.addConstraint(Sketcher.Constraint("DistanceY", -1, 1, 3, 3, 16.086246))
pocket3 = doc.addObject("PartDesign::Pocket", "Pocket002")
body.addObject(pocket3)
pocket3.Profile = sketch6
pocket3.Type = "ThroughAll"
pocket3.Midplane = True

# Sketch on XY plane
sketch7 = doc.addObject("Sketcher::SketchObject", "Sketch006")
body.addObject(sketch7)
sketch7.AttachmentSupport = (doc.XY_Plane, [""])
sketch7.MapMode = "FlatFace"
sketch7.addGeometry(Part.Circle(Vector(139.3, 55, 0), Vector(0, 0, 1), 2.25), False)
sketch7.addGeometry(Part.Circle(Vector(139.3, 0, 0), Vector(0, 0, 1), 2.25), False)
sketch7.addGeometry(Part.Circle(Vector(139.3, -55, 0), Vector(0, 0, 1), 2.25), False)
sketch7.addGeometry(Part.Circle(Vector(-139.3, 55, 0), Vector(0, 0, 1), 2.25), False)
sketch7.addGeometry(Part.Circle(Vector(-139.3, 0, 0), Vector(0, 0, 1), 2.25), False)
sketch7.addGeometry(Part.Circle(Vector(-139.3, -55, 0), Vector(0, 0, 1), 2.25), False)
sketch7.addConstraint(Sketcher.Constraint("Equal", 0, 1))
sketch7.addConstraint(Sketcher.Constraint("Equal", 1, 2))
sketch7.addConstraint(Sketcher.Constraint("Equal", 2, 3))
sketch7.addConstraint(Sketcher.Constraint("Equal", 3, 4))
sketch7.addConstraint(Sketcher.Constraint("Equal", 4, 5))
sketch7.addConstraint(Sketcher.Constraint("Symmetric", 2, 3, 3, 3, -1, 1))
sketch7.addConstraint(Sketcher.Constraint("Symmetric", 1, 3, 4, 3, -1, 1))
sketch7.addConstraint(Sketcher.Constraint("Symmetric", 0, 3, 5, 3, -1, 1))
sketch7.addConstraint(Sketcher.Constraint("Symmetric", 0, 3, 3, 3, -2))
sketch7.addConstraint(Sketcher.Constraint("PointOnObject", 1, 3, -1))
sketch7.addConstraint(Sketcher.Constraint("Vertical", 0, 3, 1, 3))
sketch7.addConstraint(Sketcher.Constraint("Diameter", 0, 4.5))
sketch7.addConstraint(Sketcher.Constraint("DistanceY", -1, 1, 0, 3, 55.0))
sketch7.addConstraint(Sketcher.Constraint("DistanceX", -1, 1, 0, 3, 139.3))
doc.recompute()
hole3 = doc.addObject("PartDesign::Hole", "Hole002")
body.addObject(hole3)
hole3.Profile = sketch7
hole3.ThreadType = "None"
hole3.Diameter = 4.5
hole3.DepthType = "ThroughAll"
hole3.Reversed = True

# Sketch on XY plane
sketch8 = doc.addObject("Sketcher::SketchObject", "Sketch007")
body.addObject(sketch8)
sketch8.AttachmentSupport = (doc.XY_Plane, [""])
sketch8.MapMode = "FlatFace"
sketch8.AttachmentOffset = App.Placement(Vector(0, 0, 3), App.Rotation())
sketch8.addGeometry(Part.LineSegment(Vector(-66.5, 97.213754, 0), Vector(-66.5, 84.213754, 0)), False)
sketch8.addGeometry(Part.LineSegment(Vector(-66.5, 84.213754, 0), Vector(-53.5, 84.213754, 0)), False)
sketch8.addGeometry(Part.LineSegment(Vector(-53.5, 84.213754, 0), Vector(-53.5, 97.213754, 0)), False)
sketch8.addGeometry(Part.LineSegment(Vector(-53.5, 97.213754, 0), Vector(-66.5, 97.213754, 0)), False)
sketch8.addGeometry(Part.LineSegment(Vector(-6.5, 97.213754, 0), Vector(-6.5, 84.213754, 0)), False)
sketch8.addGeometry(Part.LineSegment(Vector(-6.5, 84.213754, 0), Vector(6.5, 84.213754, 0)), False)
sketch8.addGeometry(Part.LineSegment(Vector(6.5, 84.213754, 0), Vector(6.5, 97.213754, 0)), False)
sketch8.addGeometry(Part.LineSegment(Vector(6.5, 97.213754, 0), Vector(-6.5, 97.213754, 0)), False)
sketch8.addGeometry(Part.LineSegment(Vector(53.5, 97.213754, 0), Vector(53.5, 84.213754, 0)), False)
sketch8.addGeometry(Part.LineSegment(Vector(53.5, 84.213754, 0), Vector(66.5, 84.213754, 0)), False)
sketch8.addGeometry(Part.LineSegment(Vector(66.5, 84.213754, 0), Vector(66.5, 97.213754, 0)), False)
sketch8.addGeometry(Part.LineSegment(Vector(66.5, 97.213754, 0), Vector(53.5, 97.213754, 0)), False)
sketch8.addConstraint(Sketcher.Constraint("Coincident", 0, 2, 1, 1))
sketch8.addConstraint(Sketcher.Constraint("Coincident", 1, 2, 2, 1))
sketch8.addConstraint(Sketcher.Constraint("Coincident", 2, 2, 3, 1))
sketch8.addConstraint(Sketcher.Constraint("Coincident", 3, 2, 0, 1))
sketch8.addConstraint(Sketcher.Constraint("Coincident", 4, 2, 5, 1))
sketch8.addConstraint(Sketcher.Constraint("Coincident", 5, 2, 6, 1))
sketch8.addConstraint(Sketcher.Constraint("Coincident", 6, 2, 7, 1))
sketch8.addConstraint(Sketcher.Constraint("Coincident", 7, 2, 4, 1))
sketch8.addConstraint(Sketcher.Constraint("Coincident", 8, 2, 9, 1))
sketch8.addConstraint(Sketcher.Constraint("Coincident", 9, 2, 10, 1))
sketch8.addConstraint(Sketcher.Constraint("Coincident", 10, 2, 11, 1))
sketch8.addConstraint(Sketcher.Constraint("Coincident", 11, 2, 8, 1))
sketch8.addConstraint(Sketcher.Constraint("Vertical", 0))
sketch8.addConstraint(Sketcher.Constraint("Horizontal", 1))
sketch8.addConstraint(Sketcher.Constraint("Vertical", 2))
sketch8.addConstraint(Sketcher.Constraint("Horizontal", 3))
sketch8.addConstraint(Sketcher.Constraint("Vertical", 4))
sketch8.addConstraint(Sketcher.Constraint("Horizontal", 5))
sketch8.addConstraint(Sketcher.Constraint("Vertical", 6))
sketch8.addConstraint(Sketcher.Constraint("Horizontal", 7))
sketch8.addConstraint(Sketcher.Constraint("Vertical", 8))
sketch8.addConstraint(Sketcher.Constraint("Horizontal", 9))
sketch8.addConstraint(Sketcher.Constraint("Vertical", 10))
sketch8.addConstraint(Sketcher.Constraint("Horizontal", 11))
sketch8.addConstraint(Sketcher.Constraint("Symmetric", 1, 2, 8, 2, -2))
sketch8.addConstraint(Sketcher.Constraint("Symmetric", 3, 2, 10, 2, -2))
sketch8.addConstraint(Sketcher.Constraint("Horizontal", 1, 2, 4, 2))
sketch8.addConstraint(Sketcher.Constraint("Horizontal", 3, 2, 6, 2))
sketch8.addConstraint(Sketcher.Constraint("Equal", 3, 5))
sketch8.addConstraint(Sketcher.Constraint("Equal", 11, 0))
sketch8.addConstraint(Sketcher.Constraint("DistanceX", 1, 1, 1, 2, 13.0))
sketch8.addConstraint(Sketcher.Constraint("DistanceX", 1, 2, 4, 2, 47.0))
sketch8.addConstraint(Sketcher.Constraint("DistanceX", 5, 2, 8, 2, 47.0))
sketch8.addConstraint(Sketcher.Constraint("DistanceY", -1, 1, 0, 2, 84.213754))
pocket4 = doc.addObject("PartDesign::Pocket", "Pocket003")
body.addObject(pocket4)
pocket4.Profile = sketch8
pocket4.Type = "ThroughAll"

doc.recompute()
